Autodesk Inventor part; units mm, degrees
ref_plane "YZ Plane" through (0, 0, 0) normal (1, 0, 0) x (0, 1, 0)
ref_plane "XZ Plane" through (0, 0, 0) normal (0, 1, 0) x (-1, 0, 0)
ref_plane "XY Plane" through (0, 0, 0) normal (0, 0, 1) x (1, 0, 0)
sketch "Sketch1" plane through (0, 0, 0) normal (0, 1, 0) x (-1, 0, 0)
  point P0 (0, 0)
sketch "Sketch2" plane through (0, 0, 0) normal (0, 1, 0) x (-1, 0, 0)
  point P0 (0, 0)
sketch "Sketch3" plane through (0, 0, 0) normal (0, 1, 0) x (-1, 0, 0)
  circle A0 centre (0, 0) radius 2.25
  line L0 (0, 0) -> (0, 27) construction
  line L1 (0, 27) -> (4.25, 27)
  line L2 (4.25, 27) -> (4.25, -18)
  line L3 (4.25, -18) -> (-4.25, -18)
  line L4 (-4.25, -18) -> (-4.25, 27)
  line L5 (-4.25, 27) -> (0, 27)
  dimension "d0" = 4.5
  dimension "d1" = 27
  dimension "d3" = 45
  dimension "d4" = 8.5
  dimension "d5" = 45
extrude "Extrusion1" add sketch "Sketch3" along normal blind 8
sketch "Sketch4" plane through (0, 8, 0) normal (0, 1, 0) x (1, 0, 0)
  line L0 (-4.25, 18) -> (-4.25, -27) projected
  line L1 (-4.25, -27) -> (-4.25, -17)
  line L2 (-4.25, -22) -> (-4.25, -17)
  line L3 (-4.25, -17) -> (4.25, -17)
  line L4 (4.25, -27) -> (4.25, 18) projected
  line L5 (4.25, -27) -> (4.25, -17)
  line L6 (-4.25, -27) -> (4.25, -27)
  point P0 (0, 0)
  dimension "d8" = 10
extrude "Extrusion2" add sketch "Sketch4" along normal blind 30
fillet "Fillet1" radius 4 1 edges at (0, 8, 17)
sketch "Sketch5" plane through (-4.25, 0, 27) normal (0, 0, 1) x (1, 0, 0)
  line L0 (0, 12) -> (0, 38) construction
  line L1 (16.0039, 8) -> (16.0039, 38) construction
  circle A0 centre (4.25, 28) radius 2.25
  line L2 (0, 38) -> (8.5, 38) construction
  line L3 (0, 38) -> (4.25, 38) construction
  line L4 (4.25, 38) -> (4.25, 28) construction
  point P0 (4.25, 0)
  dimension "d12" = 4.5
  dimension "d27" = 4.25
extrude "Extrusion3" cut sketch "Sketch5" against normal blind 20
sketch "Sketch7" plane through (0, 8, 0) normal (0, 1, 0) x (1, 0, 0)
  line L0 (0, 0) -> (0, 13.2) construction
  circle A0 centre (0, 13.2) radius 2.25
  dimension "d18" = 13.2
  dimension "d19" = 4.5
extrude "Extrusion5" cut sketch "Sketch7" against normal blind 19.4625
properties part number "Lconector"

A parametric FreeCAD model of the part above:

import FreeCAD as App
import Part
import Sketcher
Q = App.Units.Quantity


def edges_at(feature, points):
    """Names of the edges that pass closest to the given points."""
    edges = feature.Shape.Edges
    near = lambda p: min(range(len(edges)), key=lambda i: edges[i].distToShape(Part.Vertex(*p))[0])
    return sorted({f"Edge{near(p) + 1}" for p in points})


def add_polygon(sketch, points):
    """Adds a closed chain of lines whose ends are joined by coincident constraints."""
    first, n = sketch.GeometryCount, len(points)
    for a, b in zip(points, points[1:] + points[:1]):
        sketch.addGeometry(Part.LineSegment(App.Vector(*a, 0), App.Vector(*b, 0)), False)
    for i in range(n):
        sketch.addConstraint(Sketcher.Constraint("Coincident", first + i, 2, first + (i + 1) % n, 1))

doc = App.newDocument("Part")
params = doc.addObject("Spreadsheet::Sheet", "Params")
for row, (alias, value) in enumerate([
    ("sketch1_diameter", "4.5 mm"),
    ("sketch1_height", "45 mm"),
    ("sketch1_width", "8.5 mm"),
    ("pad1_length", "8 mm"),
    ("sketch2_height", "10 mm"),
    ("sketch2_width", "8.5 mm"),
    ("pad2_length", "30 mm"),
    ("fillet_radius", "4 mm"),
    ("sketch3_diameter", "4.5 mm"),
    ("pocket1_length", "20 mm"),
    ("sketch4_diameter", "4.5 mm"),
    ("pocket2_length", "19.4625 mm"),
], start=1):
    params.set(f"A{row}", alias)
    params.set(f"B{row}", "=" + value)
    params.setAlias(f"B{row}", alias)

body = doc.addObject("PartDesign::Body", "Body")

# Sketch on XZ plane
sketch1 = body.newObject("Sketcher::SketchObject", "Sketch")
sketch1.AttachmentSupport = (doc.getObject("XZ_Plane"), [""])
sketch1.MapMode = "FlatFace"
add_polygon(sketch1, [(-4.2, 27), (4.2, 27), (4.2, -18), (-4.2, -18)])  # lines 0-3
sketch1.addGeometry(Part.Circle(App.Vector(0, 0, 0), App.Vector(0, 0, 1), 2.2), False)  # 4
sketch1.addConstraint([
    Sketcher.Constraint("Horizontal", 0),
    Sketcher.Constraint("Vertical", 1),
    Sketcher.Constraint("Horizontal", 2),
    Sketcher.Constraint("Vertical", 3),
    Sketcher.Constraint("Coincident", 4, 3, -1, 1),
    Sketcher.Constraint("Diameter", 4, Q("4.5 mm")),
    Sketcher.Constraint("DistanceY", 1, 2, 1, 1, Q("45 mm")),
    Sketcher.Constraint("DistanceX", 0, 1, 0, 2, Q("8.5 mm")),
    Sketcher.Constraint("DistanceY", -1, 1, 0, 2, Q("27 mm")),
    Sketcher.Constraint("DistanceX", -1, 1, 0, 2, Q("4.25 mm")),
])
sketch1.setExpression("Constraints[9]", "Params.sketch1_diameter")
sketch1.setExpression("Constraints[10]", "Params.sketch1_height")
sketch1.setExpression("Constraints[11]", "Params.sketch1_width")
pad1 = body.newObject("PartDesign::Pad", "Pad")
pad1.Profile = sketch1
pad1.setExpression("Length", "Params.pad1_length")
pad1.Reversed = True

# Sketch on XZ plane
sketch2 = body.newObject("Sketcher::SketchObject", "Sketch001")
sketch2.AttachmentSupport = (doc.getObject("XZ_Plane"), [""])
sketch2.MapMode = "FlatFace"
sketch2.AttachmentOffset = App.Placement(App.Vector(0, 0, -8), App.Rotation())
add_polygon(sketch2, [(4, 17), (-4, 17), (-4, 27), (4, 27)])  # lines 0-3
sketch2.addConstraint([
    Sketcher.Constraint("Horizontal", 0),
    Sketcher.Constraint("Vertical", 1),
    Sketcher.Constraint("Horizontal", 2),
    Sketcher.Constraint("Vertical", 3),
    Sketcher.Constraint("DistanceY", 1, 1, 1, 2, Q("10 mm")),
    Sketcher.Constraint("DistanceX", 0, 2, 0, 1, Q("8.5 mm")),
    Sketcher.Constraint("DistanceY", -1, 1, 0, 2, Q("17 mm")),
    Sketcher.Constraint("DistanceX", 0, 2, -1, 1, Q("4.25 mm")),
])
sketch2.setExpression("Constraints[8]", "Params.sketch2_height")
sketch2.setExpression("Constraints[9]", "Params.sketch2_width")
pad2 = body.newObject("PartDesign::Pad", "Pad001")
pad2.Profile = sketch2
pad2.setExpression("Length", "Params.pad2_length")
pad2.Reversed = True
doc.recompute()

fillet = body.newObject("PartDesign::Fillet", "Fillet")
fillet.Base = (pad2, edges_at(pad2, [(0, 8, 17)]))
fillet.setExpression("Radius", "Params.fillet_radius")

# Sketch on XY plane
sketch3 = body.newObject("Sketcher::SketchObject", "Sketch002")
sketch3.AttachmentSupport = (doc.getObject("XY_Plane"), [""])
sketch3.MapMode = "FlatFace"
sketch3.AttachmentOffset = App.Placement(App.Vector(0, 0, 27), App.Rotation())
sketch3.addGeometry(Part.Circle(App.Vector(0, 28, 0), App.Vector(0, 0, 1), 2.2), False)
sketch3.addConstraint([
    Sketcher.Constraint("PointOnObject", 0, 3, -2),
    Sketcher.Constraint("Diameter", 0, Q("4.5 mm")),
    Sketcher.Constraint("DistanceY", -1, 1, 0, 3, Q("28 mm")),
])
sketch3.setExpression("Constraints[1]", "Params.sketch3_diameter")
pocket1 = body.newObject("PartDesign::Pocket", "Pocket")
pocket1.Profile = sketch3
pocket1.setExpression("Length", "Params.pocket1_length")

# Sketch on XZ plane
sketch4 = body.newObject("Sketcher::SketchObject", "Sketch003")
sketch4.AttachmentSupport = (doc.getObject("XZ_Plane"), [""])
sketch4.MapMode = "FlatFace"
sketch4.AttachmentOffset = App.Placement(App.Vector(0, 0, -8), App.Rotation())
sketch4.addGeometry(Part.Circle(App.Vector(0, -13.2, 0), App.Vector(0, 0, 1), 2.2), False)
sketch4.addConstraint([
    Sketcher.Constraint("PointOnObject", 0, 3, -2),
    Sketcher.Constraint("Diameter", 0, Q("4.5 mm")),
    Sketcher.Constraint("DistanceY", 0, 3, -1, 1, Q("13.2 mm")),
])
sketch4.setExpression("Constraints[1]", "Params.sketch4_diameter")
pocket2 = body.newObject("PartDesign::Pocket", "Pocket001")
pocket2.Profile = sketch4
pocket2.setExpression("Length", "Params.pocket2_length")
pocket2.Reversed = True

doc.recompute()
